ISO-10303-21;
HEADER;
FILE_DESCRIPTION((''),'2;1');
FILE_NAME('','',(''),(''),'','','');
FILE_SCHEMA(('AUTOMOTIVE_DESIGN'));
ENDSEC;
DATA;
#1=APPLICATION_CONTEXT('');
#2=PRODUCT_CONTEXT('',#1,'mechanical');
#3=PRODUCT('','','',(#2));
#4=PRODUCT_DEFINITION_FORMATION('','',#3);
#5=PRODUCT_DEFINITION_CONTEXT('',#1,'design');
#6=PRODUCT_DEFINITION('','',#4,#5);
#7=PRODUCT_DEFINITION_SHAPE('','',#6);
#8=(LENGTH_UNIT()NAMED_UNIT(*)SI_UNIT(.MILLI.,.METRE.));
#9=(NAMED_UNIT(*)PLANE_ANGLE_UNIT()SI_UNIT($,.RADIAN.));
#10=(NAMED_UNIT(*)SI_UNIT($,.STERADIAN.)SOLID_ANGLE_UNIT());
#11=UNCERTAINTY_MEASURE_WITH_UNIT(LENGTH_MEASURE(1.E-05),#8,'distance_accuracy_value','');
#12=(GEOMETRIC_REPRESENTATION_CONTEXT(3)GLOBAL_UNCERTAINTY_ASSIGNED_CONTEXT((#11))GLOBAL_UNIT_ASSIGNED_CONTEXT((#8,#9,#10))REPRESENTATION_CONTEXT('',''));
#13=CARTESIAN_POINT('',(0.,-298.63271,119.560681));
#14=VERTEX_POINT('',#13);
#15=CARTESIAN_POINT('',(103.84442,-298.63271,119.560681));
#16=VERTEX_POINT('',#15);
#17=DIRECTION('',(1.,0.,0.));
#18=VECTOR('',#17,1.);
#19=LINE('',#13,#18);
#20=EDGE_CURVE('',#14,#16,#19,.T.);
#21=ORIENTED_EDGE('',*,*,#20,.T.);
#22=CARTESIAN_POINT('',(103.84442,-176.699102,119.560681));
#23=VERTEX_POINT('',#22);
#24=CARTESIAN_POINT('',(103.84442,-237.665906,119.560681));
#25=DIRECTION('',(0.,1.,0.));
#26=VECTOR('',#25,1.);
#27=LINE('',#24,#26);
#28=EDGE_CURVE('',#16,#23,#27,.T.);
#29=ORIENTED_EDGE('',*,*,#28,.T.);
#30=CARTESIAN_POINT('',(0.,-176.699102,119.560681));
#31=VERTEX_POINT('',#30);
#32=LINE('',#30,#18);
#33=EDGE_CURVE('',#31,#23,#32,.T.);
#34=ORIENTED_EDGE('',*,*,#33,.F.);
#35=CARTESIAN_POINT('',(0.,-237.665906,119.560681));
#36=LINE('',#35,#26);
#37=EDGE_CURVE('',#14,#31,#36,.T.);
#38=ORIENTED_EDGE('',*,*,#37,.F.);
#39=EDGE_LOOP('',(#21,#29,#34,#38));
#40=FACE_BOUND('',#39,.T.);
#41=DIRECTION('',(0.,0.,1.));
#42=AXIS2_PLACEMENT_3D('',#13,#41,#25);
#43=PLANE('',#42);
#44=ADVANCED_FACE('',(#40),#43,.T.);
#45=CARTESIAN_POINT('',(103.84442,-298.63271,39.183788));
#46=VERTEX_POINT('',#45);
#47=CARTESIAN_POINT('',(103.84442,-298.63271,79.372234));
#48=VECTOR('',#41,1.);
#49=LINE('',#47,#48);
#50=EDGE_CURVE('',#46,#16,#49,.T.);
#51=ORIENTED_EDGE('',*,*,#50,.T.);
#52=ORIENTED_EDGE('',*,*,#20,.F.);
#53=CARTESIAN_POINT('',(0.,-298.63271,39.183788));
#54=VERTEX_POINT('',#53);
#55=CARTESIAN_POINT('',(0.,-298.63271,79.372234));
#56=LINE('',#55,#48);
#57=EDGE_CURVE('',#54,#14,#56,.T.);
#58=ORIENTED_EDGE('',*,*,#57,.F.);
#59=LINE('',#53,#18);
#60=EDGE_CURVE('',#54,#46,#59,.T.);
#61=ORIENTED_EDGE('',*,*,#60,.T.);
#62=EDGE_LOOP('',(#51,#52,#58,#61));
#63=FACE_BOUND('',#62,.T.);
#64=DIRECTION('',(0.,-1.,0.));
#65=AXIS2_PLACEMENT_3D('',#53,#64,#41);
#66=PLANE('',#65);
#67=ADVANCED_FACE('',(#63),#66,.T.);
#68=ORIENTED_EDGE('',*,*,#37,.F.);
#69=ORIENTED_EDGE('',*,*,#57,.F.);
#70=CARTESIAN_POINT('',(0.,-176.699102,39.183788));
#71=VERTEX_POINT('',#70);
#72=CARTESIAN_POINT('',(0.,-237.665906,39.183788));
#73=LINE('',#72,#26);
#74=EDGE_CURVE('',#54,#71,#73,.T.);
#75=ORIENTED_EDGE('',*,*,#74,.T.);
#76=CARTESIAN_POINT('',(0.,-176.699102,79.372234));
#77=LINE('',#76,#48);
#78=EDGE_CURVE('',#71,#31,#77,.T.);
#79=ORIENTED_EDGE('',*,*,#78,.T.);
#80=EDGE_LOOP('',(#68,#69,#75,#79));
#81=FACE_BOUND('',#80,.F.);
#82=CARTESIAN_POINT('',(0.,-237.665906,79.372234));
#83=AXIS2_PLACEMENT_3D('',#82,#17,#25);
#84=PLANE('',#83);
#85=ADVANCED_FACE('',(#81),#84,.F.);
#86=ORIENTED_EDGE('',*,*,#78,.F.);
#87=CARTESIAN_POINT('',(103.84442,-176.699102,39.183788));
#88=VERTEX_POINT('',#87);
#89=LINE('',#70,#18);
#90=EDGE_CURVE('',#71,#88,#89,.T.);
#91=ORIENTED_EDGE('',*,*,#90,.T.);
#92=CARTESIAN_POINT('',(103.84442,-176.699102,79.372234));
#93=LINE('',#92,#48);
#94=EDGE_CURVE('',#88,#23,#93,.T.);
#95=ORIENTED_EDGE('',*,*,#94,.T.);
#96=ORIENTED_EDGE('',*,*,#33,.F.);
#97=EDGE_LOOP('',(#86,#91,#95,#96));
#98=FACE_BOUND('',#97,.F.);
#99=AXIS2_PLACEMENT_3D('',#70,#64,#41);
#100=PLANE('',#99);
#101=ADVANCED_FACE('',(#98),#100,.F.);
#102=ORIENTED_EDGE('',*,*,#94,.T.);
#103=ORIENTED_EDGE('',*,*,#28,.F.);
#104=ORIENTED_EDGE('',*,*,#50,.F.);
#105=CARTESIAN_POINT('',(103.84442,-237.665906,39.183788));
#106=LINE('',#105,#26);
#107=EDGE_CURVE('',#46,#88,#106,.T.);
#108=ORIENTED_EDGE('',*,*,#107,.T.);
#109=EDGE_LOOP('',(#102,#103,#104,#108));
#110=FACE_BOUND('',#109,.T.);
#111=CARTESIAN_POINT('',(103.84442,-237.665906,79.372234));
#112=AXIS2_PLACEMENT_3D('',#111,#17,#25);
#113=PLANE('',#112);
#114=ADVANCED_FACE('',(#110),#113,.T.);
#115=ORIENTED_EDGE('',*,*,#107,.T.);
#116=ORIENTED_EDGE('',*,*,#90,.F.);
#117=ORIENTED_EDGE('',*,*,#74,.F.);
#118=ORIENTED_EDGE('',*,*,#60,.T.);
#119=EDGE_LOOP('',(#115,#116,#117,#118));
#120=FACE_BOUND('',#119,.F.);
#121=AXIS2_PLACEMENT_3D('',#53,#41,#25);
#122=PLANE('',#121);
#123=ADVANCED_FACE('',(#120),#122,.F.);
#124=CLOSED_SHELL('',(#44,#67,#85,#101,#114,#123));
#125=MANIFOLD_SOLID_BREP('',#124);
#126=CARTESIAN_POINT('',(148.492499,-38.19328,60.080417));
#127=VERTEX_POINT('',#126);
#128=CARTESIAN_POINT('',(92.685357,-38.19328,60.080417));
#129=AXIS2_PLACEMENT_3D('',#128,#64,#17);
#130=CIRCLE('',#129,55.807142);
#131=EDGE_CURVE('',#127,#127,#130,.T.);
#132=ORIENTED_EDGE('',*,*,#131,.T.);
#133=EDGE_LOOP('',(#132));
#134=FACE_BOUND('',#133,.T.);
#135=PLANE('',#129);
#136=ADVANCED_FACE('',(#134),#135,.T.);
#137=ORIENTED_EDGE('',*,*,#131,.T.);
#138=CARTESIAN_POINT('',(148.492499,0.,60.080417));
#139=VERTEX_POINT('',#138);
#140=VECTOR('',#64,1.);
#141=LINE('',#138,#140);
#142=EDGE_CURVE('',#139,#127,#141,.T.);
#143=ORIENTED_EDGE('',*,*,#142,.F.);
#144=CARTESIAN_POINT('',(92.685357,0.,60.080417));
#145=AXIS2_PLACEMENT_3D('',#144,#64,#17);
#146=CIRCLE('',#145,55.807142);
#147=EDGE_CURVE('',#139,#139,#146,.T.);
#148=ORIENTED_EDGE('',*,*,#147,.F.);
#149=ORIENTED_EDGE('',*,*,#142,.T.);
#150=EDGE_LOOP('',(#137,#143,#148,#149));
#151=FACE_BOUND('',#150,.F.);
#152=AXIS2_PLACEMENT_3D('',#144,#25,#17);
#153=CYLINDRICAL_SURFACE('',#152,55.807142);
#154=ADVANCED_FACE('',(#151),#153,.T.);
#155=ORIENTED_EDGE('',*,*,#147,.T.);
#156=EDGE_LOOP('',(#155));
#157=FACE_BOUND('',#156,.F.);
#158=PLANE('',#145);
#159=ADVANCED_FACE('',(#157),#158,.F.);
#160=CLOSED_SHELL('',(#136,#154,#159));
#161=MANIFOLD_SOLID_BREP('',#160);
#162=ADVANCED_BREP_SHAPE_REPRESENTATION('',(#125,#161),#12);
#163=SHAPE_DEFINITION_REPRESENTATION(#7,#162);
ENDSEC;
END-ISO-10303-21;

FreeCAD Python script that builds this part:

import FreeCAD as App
import Part
import Sketcher
Q = App.Units.Quantity


def add_polygon(sketch, points):
    """Adds a closed chain of lines whose ends are joined by coincident constraints."""
    first, n = sketch.GeometryCount, len(points)
    for a, b in zip(points, points[1:] + points[:1]):
        sketch.addGeometry(Part.LineSegment(App.Vector(*a, 0), App.Vector(*b, 0)), False)
    for i in range(n):
        sketch.addConstraint(Sketcher.Constraint("Coincident", first + i, 2, first + (i + 1) % n, 1))

doc = App.newDocument("Part")
body = doc.addObject("PartDesign::Body", "Body")

sketch1 = body.newObject("Sketcher::SketchObject", "Sketch")
sketch1.AttachmentSupport = (doc.getObject("YZ_Plane"), [""])
sketch1.MapMode = "FlatFace"
add_polygon(sketch1, [(-298.63271, 119.560681), (-298.63271, 39.183788), (-176.699102, 39.183788), (-176.699102, 119.560681)])
sketch1.addConstraint([
    Sketcher.Constraint("Vertical", 0),
    Sketcher.Constraint("Horizontal", 1),
    Sketcher.Constraint("Vertical", 2),
    Sketcher.Constraint("Horizontal", 3),
    Sketcher.Constraint("DistanceX", 1, 1, 1, 2, Q("121.933609 mm")),
    Sketcher.Constraint("DistanceX", 1, 2, -1, 1, Q("176.699102 mm")),
    Sketcher.Constraint("DistanceY", 0, 2, 0, 1, Q("80.376893 mm")),
    Sketcher.Constraint("DistanceY", -1, 1, 2, 2, Q("119.560681 mm")),
])
pad1 = body.newObject("PartDesign::Pad", "Pad")
pad1.Profile = sketch1
pad1.Length = 103.84442
body2 = doc.addObject("PartDesign::Body", "Body001")

sketch2 = body2.newObject("Sketcher::SketchObject", "Sketch001")
sketch2.AttachmentSupport = (doc.getObject("XZ_Plane001"), [""])
sketch2.MapMode = "FlatFace"
sketch2.addGeometry(Part.Circle(App.Vector(92.685357, 60.080417, 0), App.Vector(0, 0, 1), 55.807142), False)
sketch2.addConstraint([
    Sketcher.Constraint("Diameter", 0, Q("111.614284 mm")),
    Sketcher.Constraint("DistanceX", -1, 1, 0, 3, Q("92.685357 mm")),
    Sketcher.Constraint("DistanceY", -1, 1, 0, 3, Q("60.080417 mm")),
])
pad2 = body2.newObject("PartDesign::Pad", "Pad001")
pad2.Profile = sketch2
pad2.Length = 38.19328

doc.recompute()
